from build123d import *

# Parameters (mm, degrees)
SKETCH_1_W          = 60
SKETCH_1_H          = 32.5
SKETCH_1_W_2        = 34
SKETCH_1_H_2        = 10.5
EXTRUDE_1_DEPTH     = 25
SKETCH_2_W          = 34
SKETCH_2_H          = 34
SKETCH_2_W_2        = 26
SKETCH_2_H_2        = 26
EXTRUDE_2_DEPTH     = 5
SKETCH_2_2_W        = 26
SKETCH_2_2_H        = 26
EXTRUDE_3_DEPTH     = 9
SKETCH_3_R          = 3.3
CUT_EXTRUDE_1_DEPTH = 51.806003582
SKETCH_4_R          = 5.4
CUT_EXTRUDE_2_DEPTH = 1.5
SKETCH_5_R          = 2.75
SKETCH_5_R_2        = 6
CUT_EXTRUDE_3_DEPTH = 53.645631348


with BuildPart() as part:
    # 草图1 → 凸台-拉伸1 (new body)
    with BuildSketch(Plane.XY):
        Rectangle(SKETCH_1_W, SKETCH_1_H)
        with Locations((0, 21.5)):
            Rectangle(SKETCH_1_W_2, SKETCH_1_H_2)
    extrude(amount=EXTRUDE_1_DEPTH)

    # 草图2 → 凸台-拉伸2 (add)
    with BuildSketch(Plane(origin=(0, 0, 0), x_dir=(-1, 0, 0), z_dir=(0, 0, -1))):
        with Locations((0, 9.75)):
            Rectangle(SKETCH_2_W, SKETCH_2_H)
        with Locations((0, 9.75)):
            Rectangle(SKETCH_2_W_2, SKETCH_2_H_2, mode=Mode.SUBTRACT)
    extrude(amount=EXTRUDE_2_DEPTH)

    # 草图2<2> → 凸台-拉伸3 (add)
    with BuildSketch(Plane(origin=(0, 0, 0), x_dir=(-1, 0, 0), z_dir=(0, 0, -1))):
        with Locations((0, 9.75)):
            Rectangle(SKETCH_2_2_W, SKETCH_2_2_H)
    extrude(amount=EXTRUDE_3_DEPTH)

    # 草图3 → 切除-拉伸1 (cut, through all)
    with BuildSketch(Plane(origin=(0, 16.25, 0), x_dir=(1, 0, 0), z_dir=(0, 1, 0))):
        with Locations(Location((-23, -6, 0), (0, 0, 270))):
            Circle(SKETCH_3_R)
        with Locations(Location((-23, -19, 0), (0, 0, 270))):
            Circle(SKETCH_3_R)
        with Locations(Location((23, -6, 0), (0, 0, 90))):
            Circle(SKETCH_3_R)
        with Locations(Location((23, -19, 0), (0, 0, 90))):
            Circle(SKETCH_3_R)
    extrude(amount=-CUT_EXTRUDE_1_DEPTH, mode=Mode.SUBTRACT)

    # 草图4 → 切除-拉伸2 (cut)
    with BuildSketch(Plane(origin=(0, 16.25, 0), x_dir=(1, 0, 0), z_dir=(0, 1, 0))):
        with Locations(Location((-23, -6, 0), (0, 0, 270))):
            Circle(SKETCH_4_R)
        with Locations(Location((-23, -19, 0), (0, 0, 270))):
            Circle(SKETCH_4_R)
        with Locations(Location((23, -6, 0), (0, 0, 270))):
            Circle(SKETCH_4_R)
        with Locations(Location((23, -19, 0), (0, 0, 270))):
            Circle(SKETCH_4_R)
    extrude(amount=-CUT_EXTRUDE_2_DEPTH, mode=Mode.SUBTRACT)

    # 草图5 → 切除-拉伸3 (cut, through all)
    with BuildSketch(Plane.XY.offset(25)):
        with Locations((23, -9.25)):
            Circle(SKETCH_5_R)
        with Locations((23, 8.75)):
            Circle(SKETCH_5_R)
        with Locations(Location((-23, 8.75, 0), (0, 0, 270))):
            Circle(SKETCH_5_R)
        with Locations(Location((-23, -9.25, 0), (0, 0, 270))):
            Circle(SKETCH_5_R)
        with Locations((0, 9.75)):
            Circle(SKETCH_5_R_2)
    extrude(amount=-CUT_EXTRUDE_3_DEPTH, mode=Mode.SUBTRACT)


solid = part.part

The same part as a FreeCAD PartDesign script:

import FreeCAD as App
import Part
import Sketcher
Q = App.Units.Quantity

doc = App.newDocument("Part")
params = doc.addObject("Spreadsheet::Sheet", "Params")
for row, (alias, value) in enumerate([
    ("sketch1_width", "60 mm"),
    ("sketch1_width2", "13 mm"),
    ("sketch1_height", "32.5 mm"),
    ("sketch1_height2", "10.5 mm"),
    ("pad1_length", "25 mm"),
    ("sketch2_width", "34 mm"),
    ("sketch2_width2", "26 mm"),
    ("pad2_length", "5 mm"),
    ("sketch3_width", "26 mm"),
    ("pad3_length", "9 mm"),
    ("sketch4_diameter", "6.6 mm"),
    ("sketch5_diameter", "10.8 mm"),
    ("pocket2_length", "1.5 mm"),
    ("sketch6_diameter", "12 mm"),
    ("sketch6_diameter2", "5.5 mm"),
], start=1):
    params.set(f"A{row}", alias)
    params.set(f"B{row}", "=" + value)
    params.setAlias(f"B{row}", alias)

body = doc.addObject("PartDesign::Body", "Body")

# Sketch on XY plane
sketch1 = doc.addObject("Sketcher::SketchObject", "Sketch")
body.addObject(sketch1)
sketch1.AttachmentSupport = (doc.XY_Plane, [""])
sketch1.MapMode = "FlatFace"
sketch1.addGeometry([
    Part.LineSegment(App.Vector(-30, 16, 0), App.Vector(-30, -16, 0)),  # 0
    Part.LineSegment(App.Vector(-30, -16, 0), App.Vector(30, -16, 0)),  # 1
    Part.LineSegment(App.Vector(30, -16, 0), App.Vector(30, 16, 0)),  # 2
    Part.LineSegment(App.Vector(30, 16, 0), App.Vector(17, 16, 0)),  # 3
    Part.LineSegment(App.Vector(17, 16, 0), App.Vector(17, 27, 0)),  # 4
    Part.LineSegment(App.Vector(17, 27, 0), App.Vector(-17, 27, 0)),  # 5
    Part.LineSegment(App.Vector(-17, 27, 0), App.Vector(-17, 16, 0)),  # 6
    Part.LineSegment(App.Vector(-17, 16, 0), App.Vector(-30, 16, 0)),  # 7
], False)
sketch1.addConstraint([
    Sketcher.Constraint("Coincident", 0, 2, 1, 1),
    Sketcher.Constraint("Coincident", 1, 2, 2, 1),
    Sketcher.Constraint("Coincident", 2, 2, 3, 1),
    Sketcher.Constraint("Coincident", 3, 2, 4, 1),
    Sketcher.Constraint("Coincident", 4, 2, 5, 1),
    Sketcher.Constraint("Coincident", 5, 2, 6, 1),
    Sketcher.Constraint("Coincident", 6, 2, 7, 1),
    Sketcher.Constraint("Coincident", 7, 2, 0, 1),
    Sketcher.Constraint("Vertical", 0),
    Sketcher.Constraint("Horizontal", 1),
    Sketcher.Constraint("Vertical", 2),
    Sketcher.Constraint("Horizontal", 3),
    Sketcher.Constraint("Vertical", 4),
    Sketcher.Constraint("Horizontal", 5),
    Sketcher.Constraint("Vertical", 6),
    Sketcher.Constraint("Horizontal", 7),
    Sketcher.Constraint("Symmetric", 0, 2, 2, 2, -1, 1),
    Sketcher.Constraint("Symmetric", 3, 2, 6, 2, -2),
    Sketcher.Constraint("DistanceX", 1, 1, 1, 2, Q("60 mm")),
    Sketcher.Constraint("DistanceX", 3, 2, 3, 1, Q("13 mm")),
    Sketcher.Constraint("DistanceY", 0, 2, 0, 1, Q("32.5 mm")),
    Sketcher.Constraint("DistanceY", 4, 1, 4, 2, Q("10.5 mm")),
])
sketch1.setExpression("Constraints[18]", "Params.sketch1_width")
sketch1.setExpression("Constraints[19]", "Params.sketch1_width2")
sketch1.setExpression("Constraints[20]", "Params.sketch1_height")
sketch1.setExpression("Constraints[21]", "Params.sketch1_height2")
pad1 = doc.addObject("PartDesign::Pad", "Pad")
body.addObject(pad1)
pad1.Profile = sketch1
pad1.setExpression("Length", "Params.pad1_length")

# Sketch on XY plane
sketch2 = doc.addObject("Sketcher::SketchObject", "Sketch001")
body.addObject(sketch2)
sketch2.AttachmentSupport = (doc.XY_Plane, [""])
sketch2.MapMode = "FlatFace"
sketch2.addGeometry([
    Part.LineSegment(App.Vector(17, 27, 0), App.Vector(17, -7, 0)),  # 0
    Part.LineSegment(App.Vector(17, -7, 0), App.Vector(-17, -7, 0)),  # 1
    Part.LineSegment(App.Vector(-17, -7, 0), App.Vector(-17, 27, 0)),  # 2
    Part.LineSegment(App.Vector(-17, 27, 0), App.Vector(17, 27, 0)),  # 3
    Part.LineSegment(App.Vector(-13, -3, 0), App.Vector(13, -3, 0)),  # 4
    Part.LineSegment(App.Vector(13, -3, 0), App.Vector(13, 23, 0)),  # 5
    Part.LineSegment(App.Vector(13, 23, 0), App.Vector(-13, 23, 0)),  # 6
    Part.LineSegment(App.Vector(-13, 23, 0), App.Vector(-13, -3, 0)),  # 7
], False)
sketch2.addConstraint([
    Sketcher.Constraint("Coincident", 0, 2, 1, 1),
    Sketcher.Constraint("Coincident", 1, 2, 2, 1),
    Sketcher.Constraint("Coincident", 2, 2, 3, 1),
    Sketcher.Constraint("Coincident", 3, 2, 0, 1),
    Sketcher.Constraint("Coincident", 4, 2, 5, 1),
    Sketcher.Constraint("Coincident", 5, 2, 6, 1),
    Sketcher.Constraint("Coincident", 6, 2, 7, 1),
    Sketcher.Constraint("Coincident", 7, 2, 4, 1),
    Sketcher.Constraint("Vertical", 0),
    Sketcher.Constraint("Horizontal", 1),
    Sketcher.Constraint("Vertical", 2),
    Sketcher.Constraint("Horizontal", 3),
    Sketcher.Constraint("Horizontal", 4),
    Sketcher.Constraint("Vertical", 5),
    Sketcher.Constraint("Horizontal", 6),
    Sketcher.Constraint("Vertical", 7),
    Sketcher.Constraint("Equal", 3, 0),
    Sketcher.Constraint("Equal", 6, 5),
    Sketcher.Constraint("DistanceX", 1, 2, 1, 1, Q("34 mm")),
    Sketcher.Constraint("DistanceX", 4, 1, 4, 2, Q("26 mm")),
    Sketcher.Constraint("DistanceX", -1, 1, 0, 2, Q("17 mm")),
    Sketcher.Constraint("DistanceX", -1, 1, 4, 2, Q("13 mm")),
    Sketcher.Constraint("DistanceY", 0, 2, 4, 2, Q("4 mm")),
    Sketcher.Constraint("DistanceY", 0, 2, -1, 1, Q("7.25 mm")),
])
sketch2.setExpression("Constraints[18]", "Params.sketch2_width")
sketch2.setExpression("Constraints[19]", "Params.sketch2_width2")
pad2 = doc.addObject("PartDesign::Pad", "Pad001")
body.addObject(pad2)
pad2.Profile = sketch2
pad2.setExpression("Length", "Params.pad2_length")
pad2.Reversed = True

# Sketch on XY plane
sketch3 = doc.addObject("Sketcher::SketchObject", "Sketch002")
body.addObject(sketch3)
sketch3.AttachmentSupport = (doc.XY_Plane, [""])
sketch3.MapMode = "FlatFace"
sketch3.addGeometry([
    Part.LineSegment(App.Vector(13, 23, 0), App.Vector(13, -3, 0)),
    Part.LineSegment(App.Vector(13, -3, 0), App.Vector(-13, -3, 0)),
    Part.LineSegment(App.Vector(-13, -3, 0), App.Vector(-13, 23, 0)),
    Part.LineSegment(App.Vector(-13, 23, 0), App.Vector(13, 23, 0)),
], False)
sketch3.addConstraint([
    Sketcher.Constraint("Coincident", 0, 2, 1, 1),
    Sketcher.Constraint("Coincident", 1, 2, 2, 1),
    Sketcher.Constraint("Coincident", 2, 2, 3, 1),
    Sketcher.Constraint("Coincident", 3, 2, 0, 1),
    Sketcher.Constraint("Vertical", 0),
    Sketcher.Constraint("Horizontal", 1),
    Sketcher.Constraint("Vertical", 2),
    Sketcher.Constraint("Horizontal", 3),
    Sketcher.Constraint("Equal", 3, 0),
    Sketcher.Constraint("DistanceX", 1, 2, 1, 1, Q("26 mm")),
    Sketcher.Constraint("DistanceX", -1, 1, 0, 2, Q("13 mm")),
    Sketcher.Constraint("DistanceY", 0, 2, -1, 1, Q("3.25 mm")),
])
sketch3.setExpression("Constraints[9]", "Params.sketch3_width")
pad3 = doc.addObject("PartDesign::Pad", "Pad002")
body.addObject(pad3)
pad3.Profile = sketch3
pad3.setExpression("Length", "Params.pad3_length")
pad3.Reversed = True

# Sketch on XZ plane
sketch4 = doc.addObject("Sketcher::SketchObject", "Sketch003")
body.addObject(sketch4)
sketch4.AttachmentSupport = (doc.XZ_Plane, [""])
sketch4.MapMode = "FlatFace"
sketch4.AttachmentOffset = App.Placement(App.Vector(0, 0, -16.25), App.Rotation())
sketch4.addGeometry([
    Part.Circle(App.Vector(-23, 6, 0), App.Vector(0, 0, 1), 3.3),
    Part.Circle(App.Vector(-23, 19, 0), App.Vector(0, 0, 1), 3.3),
    Part.Circle(App.Vector(23, 6, 0), App.Vector(0, 0, 1), 3.3),
    Part.Circle(App.Vector(23, 19, 0), App.Vector(0, 0, 1), 3.3),
], False)
sketch4.addConstraint([
    Sketcher.Constraint("Equal", 0, 1),
    Sketcher.Constraint("Equal", 1, 2),
    Sketcher.Constraint("Equal", 2, 3),
    Sketcher.Constraint("Symmetric", 0, 3, 2, 3, -2),
    Sketcher.Constraint("Symmetric", 1, 3, 3, 3, -2),
    Sketcher.Constraint("Vertical", 0, 3, 1, 3),
    Sketcher.Constraint("Diameter", 0, Q("6.6 mm")),
    Sketcher.Constraint("DistanceX", 0, 3, -1, 1, Q("23 mm")),
    Sketcher.Constraint("DistanceY", -1, 1, 0, 3, Q("6 mm")),
    Sketcher.Constraint("DistanceY", -1, 1, 1, 3, Q("19 mm")),
])
sketch4.setExpression("Constraints[6]", "Params.sketch4_diameter")
pocket1 = doc.addObject("PartDesign::Pocket", "Pocket")
body.addObject(pocket1)
pocket1.Profile = sketch4
pocket1.Type = "ThroughAll"
pocket1.Reversed = True

# Sketch on XZ plane
sketch5 = doc.addObject("Sketcher::SketchObject", "Sketch004")
body.addObject(sketch5)
sketch5.AttachmentSupport = (doc.XZ_Plane, [""])
sketch5.MapMode = "FlatFace"
sketch5.AttachmentOffset = App.Placement(App.Vector(0, 0, -16.25), App.Rotation())
sketch5.addGeometry([
    Part.Circle(App.Vector(-23, 6, 0), App.Vector(0, 0, 1), 5),
    Part.Circle(App.Vector(-23, 19, 0), App.Vector(0, 0, 1), 5),
    Part.Circle(App.Vector(23, 6, 0), App.Vector(0, 0, 1), 5),
    Part.Circle(App.Vector(23, 19, 0), App.Vector(0, 0, 1), 5),
], False)
sketch5.addConstraint([
    Sketcher.Constraint("Equal", 0, 1),
    Sketcher.Constraint("Equal", 1, 2),
    Sketcher.Constraint("Equal", 2, 3),
    Sketcher.Constraint("Symmetric", 0, 3, 2, 3, -2),
    Sketcher.Constraint("Symmetric", 1, 3, 3, 3, -2),
    Sketcher.Constraint("Vertical", 0, 3, 1, 3),
    Sketcher.Constraint("Diameter", 0, Q("10.8 mm")),
    Sketcher.Constraint("DistanceX", 0, 3, -1, 1, Q("23 mm")),
    Sketcher.Constraint("DistanceY", -1, 1, 0, 3, Q("6 mm")),
    Sketcher.Constraint("DistanceY", -1, 1, 1, 3, Q("19 mm")),
])
sketch5.setExpression("Constraints[6]", "Params.sketch5_diameter")
pocket2 = doc.addObject("PartDesign::Pocket", "Pocket001")
body.addObject(pocket2)
pocket2.Profile = sketch5
pocket2.setExpression("Length", "Params.pocket2_length")
pocket2.Reversed = True

# Sketch on XY plane
sketch6 = doc.addObject("Sketcher::SketchObject", "Sketch005")
body.addObject(sketch6)
sketch6.AttachmentSupport = (doc.XY_Plane, [""])
sketch6.MapMode = "FlatFace"
sketch6.AttachmentOffset = App.Placement(App.Vector(0, 0, 25), App.Rotation())
sketch6.addGeometry([
    Part.Circle(App.Vector(23, -9.2, 0), App.Vector(0, 0, 1), 2.8),  # 0
    Part.Circle(App.Vector(23, 8.8, 0), App.Vector(0, 0, 1), 2.8),  # 1
    Part.Circle(App.Vector(-23, 8.8, 0), App.Vector(0, 0, 1), 2.8),  # 2
    Part.Circle(App.Vector(-23, -9.2, 0), App.Vector(0, 0, 1), 2.8),  # 3
    Part.Circle(App.Vector(0, 9.8, 0), App.Vector(0, 0, 1), 6),  # 4
], False)
sketch6.addConstraint([
    Sketcher.Constraint("Equal", 0, 1),
    Sketcher.Constraint("Equal", 1, 2),
    Sketcher.Constraint("Equal", 2, 3),
    Sketcher.Constraint("Symmetric", 1, 3, 2, 3, -2),
    Sketcher.Constraint("Symmetric", 0, 3, 3, 3, -2),
    Sketcher.Constraint("PointOnObject", 4, 3, -2),
    Sketcher.Constraint("Vertical", 0, 3, 1, 3),
    Sketcher.Constraint("Diameter", 4, Q("12 mm")),
    Sketcher.Constraint("Diameter", 0, Q("5.5 mm")),
    Sketcher.Constraint("DistanceX", -1, 1, 0, 3, Q("23 mm")),
    Sketcher.Constraint("DistanceY", 0, 3, 1, 3, Q("18 mm")),
    Sketcher.Constraint("DistanceY", 1, 3, 4, 3, Q("1 mm")),
    Sketcher.Constraint("DistanceY", 0, 3, -1, 1, Q("9.25 mm")),
])
sketch6.setExpression("Constraints[7]", "Params.sketch6_diameter")
sketch6.setExpression("Constraints[8]", "Params.sketch6_diameter2")
pocket3 = doc.addObject("PartDesign::Pocket", "Pocket002")
body.addObject(pocket3)
pocket3.Profile = sketch6
pocket3.Type = "ThroughAll"

doc.recompute()
